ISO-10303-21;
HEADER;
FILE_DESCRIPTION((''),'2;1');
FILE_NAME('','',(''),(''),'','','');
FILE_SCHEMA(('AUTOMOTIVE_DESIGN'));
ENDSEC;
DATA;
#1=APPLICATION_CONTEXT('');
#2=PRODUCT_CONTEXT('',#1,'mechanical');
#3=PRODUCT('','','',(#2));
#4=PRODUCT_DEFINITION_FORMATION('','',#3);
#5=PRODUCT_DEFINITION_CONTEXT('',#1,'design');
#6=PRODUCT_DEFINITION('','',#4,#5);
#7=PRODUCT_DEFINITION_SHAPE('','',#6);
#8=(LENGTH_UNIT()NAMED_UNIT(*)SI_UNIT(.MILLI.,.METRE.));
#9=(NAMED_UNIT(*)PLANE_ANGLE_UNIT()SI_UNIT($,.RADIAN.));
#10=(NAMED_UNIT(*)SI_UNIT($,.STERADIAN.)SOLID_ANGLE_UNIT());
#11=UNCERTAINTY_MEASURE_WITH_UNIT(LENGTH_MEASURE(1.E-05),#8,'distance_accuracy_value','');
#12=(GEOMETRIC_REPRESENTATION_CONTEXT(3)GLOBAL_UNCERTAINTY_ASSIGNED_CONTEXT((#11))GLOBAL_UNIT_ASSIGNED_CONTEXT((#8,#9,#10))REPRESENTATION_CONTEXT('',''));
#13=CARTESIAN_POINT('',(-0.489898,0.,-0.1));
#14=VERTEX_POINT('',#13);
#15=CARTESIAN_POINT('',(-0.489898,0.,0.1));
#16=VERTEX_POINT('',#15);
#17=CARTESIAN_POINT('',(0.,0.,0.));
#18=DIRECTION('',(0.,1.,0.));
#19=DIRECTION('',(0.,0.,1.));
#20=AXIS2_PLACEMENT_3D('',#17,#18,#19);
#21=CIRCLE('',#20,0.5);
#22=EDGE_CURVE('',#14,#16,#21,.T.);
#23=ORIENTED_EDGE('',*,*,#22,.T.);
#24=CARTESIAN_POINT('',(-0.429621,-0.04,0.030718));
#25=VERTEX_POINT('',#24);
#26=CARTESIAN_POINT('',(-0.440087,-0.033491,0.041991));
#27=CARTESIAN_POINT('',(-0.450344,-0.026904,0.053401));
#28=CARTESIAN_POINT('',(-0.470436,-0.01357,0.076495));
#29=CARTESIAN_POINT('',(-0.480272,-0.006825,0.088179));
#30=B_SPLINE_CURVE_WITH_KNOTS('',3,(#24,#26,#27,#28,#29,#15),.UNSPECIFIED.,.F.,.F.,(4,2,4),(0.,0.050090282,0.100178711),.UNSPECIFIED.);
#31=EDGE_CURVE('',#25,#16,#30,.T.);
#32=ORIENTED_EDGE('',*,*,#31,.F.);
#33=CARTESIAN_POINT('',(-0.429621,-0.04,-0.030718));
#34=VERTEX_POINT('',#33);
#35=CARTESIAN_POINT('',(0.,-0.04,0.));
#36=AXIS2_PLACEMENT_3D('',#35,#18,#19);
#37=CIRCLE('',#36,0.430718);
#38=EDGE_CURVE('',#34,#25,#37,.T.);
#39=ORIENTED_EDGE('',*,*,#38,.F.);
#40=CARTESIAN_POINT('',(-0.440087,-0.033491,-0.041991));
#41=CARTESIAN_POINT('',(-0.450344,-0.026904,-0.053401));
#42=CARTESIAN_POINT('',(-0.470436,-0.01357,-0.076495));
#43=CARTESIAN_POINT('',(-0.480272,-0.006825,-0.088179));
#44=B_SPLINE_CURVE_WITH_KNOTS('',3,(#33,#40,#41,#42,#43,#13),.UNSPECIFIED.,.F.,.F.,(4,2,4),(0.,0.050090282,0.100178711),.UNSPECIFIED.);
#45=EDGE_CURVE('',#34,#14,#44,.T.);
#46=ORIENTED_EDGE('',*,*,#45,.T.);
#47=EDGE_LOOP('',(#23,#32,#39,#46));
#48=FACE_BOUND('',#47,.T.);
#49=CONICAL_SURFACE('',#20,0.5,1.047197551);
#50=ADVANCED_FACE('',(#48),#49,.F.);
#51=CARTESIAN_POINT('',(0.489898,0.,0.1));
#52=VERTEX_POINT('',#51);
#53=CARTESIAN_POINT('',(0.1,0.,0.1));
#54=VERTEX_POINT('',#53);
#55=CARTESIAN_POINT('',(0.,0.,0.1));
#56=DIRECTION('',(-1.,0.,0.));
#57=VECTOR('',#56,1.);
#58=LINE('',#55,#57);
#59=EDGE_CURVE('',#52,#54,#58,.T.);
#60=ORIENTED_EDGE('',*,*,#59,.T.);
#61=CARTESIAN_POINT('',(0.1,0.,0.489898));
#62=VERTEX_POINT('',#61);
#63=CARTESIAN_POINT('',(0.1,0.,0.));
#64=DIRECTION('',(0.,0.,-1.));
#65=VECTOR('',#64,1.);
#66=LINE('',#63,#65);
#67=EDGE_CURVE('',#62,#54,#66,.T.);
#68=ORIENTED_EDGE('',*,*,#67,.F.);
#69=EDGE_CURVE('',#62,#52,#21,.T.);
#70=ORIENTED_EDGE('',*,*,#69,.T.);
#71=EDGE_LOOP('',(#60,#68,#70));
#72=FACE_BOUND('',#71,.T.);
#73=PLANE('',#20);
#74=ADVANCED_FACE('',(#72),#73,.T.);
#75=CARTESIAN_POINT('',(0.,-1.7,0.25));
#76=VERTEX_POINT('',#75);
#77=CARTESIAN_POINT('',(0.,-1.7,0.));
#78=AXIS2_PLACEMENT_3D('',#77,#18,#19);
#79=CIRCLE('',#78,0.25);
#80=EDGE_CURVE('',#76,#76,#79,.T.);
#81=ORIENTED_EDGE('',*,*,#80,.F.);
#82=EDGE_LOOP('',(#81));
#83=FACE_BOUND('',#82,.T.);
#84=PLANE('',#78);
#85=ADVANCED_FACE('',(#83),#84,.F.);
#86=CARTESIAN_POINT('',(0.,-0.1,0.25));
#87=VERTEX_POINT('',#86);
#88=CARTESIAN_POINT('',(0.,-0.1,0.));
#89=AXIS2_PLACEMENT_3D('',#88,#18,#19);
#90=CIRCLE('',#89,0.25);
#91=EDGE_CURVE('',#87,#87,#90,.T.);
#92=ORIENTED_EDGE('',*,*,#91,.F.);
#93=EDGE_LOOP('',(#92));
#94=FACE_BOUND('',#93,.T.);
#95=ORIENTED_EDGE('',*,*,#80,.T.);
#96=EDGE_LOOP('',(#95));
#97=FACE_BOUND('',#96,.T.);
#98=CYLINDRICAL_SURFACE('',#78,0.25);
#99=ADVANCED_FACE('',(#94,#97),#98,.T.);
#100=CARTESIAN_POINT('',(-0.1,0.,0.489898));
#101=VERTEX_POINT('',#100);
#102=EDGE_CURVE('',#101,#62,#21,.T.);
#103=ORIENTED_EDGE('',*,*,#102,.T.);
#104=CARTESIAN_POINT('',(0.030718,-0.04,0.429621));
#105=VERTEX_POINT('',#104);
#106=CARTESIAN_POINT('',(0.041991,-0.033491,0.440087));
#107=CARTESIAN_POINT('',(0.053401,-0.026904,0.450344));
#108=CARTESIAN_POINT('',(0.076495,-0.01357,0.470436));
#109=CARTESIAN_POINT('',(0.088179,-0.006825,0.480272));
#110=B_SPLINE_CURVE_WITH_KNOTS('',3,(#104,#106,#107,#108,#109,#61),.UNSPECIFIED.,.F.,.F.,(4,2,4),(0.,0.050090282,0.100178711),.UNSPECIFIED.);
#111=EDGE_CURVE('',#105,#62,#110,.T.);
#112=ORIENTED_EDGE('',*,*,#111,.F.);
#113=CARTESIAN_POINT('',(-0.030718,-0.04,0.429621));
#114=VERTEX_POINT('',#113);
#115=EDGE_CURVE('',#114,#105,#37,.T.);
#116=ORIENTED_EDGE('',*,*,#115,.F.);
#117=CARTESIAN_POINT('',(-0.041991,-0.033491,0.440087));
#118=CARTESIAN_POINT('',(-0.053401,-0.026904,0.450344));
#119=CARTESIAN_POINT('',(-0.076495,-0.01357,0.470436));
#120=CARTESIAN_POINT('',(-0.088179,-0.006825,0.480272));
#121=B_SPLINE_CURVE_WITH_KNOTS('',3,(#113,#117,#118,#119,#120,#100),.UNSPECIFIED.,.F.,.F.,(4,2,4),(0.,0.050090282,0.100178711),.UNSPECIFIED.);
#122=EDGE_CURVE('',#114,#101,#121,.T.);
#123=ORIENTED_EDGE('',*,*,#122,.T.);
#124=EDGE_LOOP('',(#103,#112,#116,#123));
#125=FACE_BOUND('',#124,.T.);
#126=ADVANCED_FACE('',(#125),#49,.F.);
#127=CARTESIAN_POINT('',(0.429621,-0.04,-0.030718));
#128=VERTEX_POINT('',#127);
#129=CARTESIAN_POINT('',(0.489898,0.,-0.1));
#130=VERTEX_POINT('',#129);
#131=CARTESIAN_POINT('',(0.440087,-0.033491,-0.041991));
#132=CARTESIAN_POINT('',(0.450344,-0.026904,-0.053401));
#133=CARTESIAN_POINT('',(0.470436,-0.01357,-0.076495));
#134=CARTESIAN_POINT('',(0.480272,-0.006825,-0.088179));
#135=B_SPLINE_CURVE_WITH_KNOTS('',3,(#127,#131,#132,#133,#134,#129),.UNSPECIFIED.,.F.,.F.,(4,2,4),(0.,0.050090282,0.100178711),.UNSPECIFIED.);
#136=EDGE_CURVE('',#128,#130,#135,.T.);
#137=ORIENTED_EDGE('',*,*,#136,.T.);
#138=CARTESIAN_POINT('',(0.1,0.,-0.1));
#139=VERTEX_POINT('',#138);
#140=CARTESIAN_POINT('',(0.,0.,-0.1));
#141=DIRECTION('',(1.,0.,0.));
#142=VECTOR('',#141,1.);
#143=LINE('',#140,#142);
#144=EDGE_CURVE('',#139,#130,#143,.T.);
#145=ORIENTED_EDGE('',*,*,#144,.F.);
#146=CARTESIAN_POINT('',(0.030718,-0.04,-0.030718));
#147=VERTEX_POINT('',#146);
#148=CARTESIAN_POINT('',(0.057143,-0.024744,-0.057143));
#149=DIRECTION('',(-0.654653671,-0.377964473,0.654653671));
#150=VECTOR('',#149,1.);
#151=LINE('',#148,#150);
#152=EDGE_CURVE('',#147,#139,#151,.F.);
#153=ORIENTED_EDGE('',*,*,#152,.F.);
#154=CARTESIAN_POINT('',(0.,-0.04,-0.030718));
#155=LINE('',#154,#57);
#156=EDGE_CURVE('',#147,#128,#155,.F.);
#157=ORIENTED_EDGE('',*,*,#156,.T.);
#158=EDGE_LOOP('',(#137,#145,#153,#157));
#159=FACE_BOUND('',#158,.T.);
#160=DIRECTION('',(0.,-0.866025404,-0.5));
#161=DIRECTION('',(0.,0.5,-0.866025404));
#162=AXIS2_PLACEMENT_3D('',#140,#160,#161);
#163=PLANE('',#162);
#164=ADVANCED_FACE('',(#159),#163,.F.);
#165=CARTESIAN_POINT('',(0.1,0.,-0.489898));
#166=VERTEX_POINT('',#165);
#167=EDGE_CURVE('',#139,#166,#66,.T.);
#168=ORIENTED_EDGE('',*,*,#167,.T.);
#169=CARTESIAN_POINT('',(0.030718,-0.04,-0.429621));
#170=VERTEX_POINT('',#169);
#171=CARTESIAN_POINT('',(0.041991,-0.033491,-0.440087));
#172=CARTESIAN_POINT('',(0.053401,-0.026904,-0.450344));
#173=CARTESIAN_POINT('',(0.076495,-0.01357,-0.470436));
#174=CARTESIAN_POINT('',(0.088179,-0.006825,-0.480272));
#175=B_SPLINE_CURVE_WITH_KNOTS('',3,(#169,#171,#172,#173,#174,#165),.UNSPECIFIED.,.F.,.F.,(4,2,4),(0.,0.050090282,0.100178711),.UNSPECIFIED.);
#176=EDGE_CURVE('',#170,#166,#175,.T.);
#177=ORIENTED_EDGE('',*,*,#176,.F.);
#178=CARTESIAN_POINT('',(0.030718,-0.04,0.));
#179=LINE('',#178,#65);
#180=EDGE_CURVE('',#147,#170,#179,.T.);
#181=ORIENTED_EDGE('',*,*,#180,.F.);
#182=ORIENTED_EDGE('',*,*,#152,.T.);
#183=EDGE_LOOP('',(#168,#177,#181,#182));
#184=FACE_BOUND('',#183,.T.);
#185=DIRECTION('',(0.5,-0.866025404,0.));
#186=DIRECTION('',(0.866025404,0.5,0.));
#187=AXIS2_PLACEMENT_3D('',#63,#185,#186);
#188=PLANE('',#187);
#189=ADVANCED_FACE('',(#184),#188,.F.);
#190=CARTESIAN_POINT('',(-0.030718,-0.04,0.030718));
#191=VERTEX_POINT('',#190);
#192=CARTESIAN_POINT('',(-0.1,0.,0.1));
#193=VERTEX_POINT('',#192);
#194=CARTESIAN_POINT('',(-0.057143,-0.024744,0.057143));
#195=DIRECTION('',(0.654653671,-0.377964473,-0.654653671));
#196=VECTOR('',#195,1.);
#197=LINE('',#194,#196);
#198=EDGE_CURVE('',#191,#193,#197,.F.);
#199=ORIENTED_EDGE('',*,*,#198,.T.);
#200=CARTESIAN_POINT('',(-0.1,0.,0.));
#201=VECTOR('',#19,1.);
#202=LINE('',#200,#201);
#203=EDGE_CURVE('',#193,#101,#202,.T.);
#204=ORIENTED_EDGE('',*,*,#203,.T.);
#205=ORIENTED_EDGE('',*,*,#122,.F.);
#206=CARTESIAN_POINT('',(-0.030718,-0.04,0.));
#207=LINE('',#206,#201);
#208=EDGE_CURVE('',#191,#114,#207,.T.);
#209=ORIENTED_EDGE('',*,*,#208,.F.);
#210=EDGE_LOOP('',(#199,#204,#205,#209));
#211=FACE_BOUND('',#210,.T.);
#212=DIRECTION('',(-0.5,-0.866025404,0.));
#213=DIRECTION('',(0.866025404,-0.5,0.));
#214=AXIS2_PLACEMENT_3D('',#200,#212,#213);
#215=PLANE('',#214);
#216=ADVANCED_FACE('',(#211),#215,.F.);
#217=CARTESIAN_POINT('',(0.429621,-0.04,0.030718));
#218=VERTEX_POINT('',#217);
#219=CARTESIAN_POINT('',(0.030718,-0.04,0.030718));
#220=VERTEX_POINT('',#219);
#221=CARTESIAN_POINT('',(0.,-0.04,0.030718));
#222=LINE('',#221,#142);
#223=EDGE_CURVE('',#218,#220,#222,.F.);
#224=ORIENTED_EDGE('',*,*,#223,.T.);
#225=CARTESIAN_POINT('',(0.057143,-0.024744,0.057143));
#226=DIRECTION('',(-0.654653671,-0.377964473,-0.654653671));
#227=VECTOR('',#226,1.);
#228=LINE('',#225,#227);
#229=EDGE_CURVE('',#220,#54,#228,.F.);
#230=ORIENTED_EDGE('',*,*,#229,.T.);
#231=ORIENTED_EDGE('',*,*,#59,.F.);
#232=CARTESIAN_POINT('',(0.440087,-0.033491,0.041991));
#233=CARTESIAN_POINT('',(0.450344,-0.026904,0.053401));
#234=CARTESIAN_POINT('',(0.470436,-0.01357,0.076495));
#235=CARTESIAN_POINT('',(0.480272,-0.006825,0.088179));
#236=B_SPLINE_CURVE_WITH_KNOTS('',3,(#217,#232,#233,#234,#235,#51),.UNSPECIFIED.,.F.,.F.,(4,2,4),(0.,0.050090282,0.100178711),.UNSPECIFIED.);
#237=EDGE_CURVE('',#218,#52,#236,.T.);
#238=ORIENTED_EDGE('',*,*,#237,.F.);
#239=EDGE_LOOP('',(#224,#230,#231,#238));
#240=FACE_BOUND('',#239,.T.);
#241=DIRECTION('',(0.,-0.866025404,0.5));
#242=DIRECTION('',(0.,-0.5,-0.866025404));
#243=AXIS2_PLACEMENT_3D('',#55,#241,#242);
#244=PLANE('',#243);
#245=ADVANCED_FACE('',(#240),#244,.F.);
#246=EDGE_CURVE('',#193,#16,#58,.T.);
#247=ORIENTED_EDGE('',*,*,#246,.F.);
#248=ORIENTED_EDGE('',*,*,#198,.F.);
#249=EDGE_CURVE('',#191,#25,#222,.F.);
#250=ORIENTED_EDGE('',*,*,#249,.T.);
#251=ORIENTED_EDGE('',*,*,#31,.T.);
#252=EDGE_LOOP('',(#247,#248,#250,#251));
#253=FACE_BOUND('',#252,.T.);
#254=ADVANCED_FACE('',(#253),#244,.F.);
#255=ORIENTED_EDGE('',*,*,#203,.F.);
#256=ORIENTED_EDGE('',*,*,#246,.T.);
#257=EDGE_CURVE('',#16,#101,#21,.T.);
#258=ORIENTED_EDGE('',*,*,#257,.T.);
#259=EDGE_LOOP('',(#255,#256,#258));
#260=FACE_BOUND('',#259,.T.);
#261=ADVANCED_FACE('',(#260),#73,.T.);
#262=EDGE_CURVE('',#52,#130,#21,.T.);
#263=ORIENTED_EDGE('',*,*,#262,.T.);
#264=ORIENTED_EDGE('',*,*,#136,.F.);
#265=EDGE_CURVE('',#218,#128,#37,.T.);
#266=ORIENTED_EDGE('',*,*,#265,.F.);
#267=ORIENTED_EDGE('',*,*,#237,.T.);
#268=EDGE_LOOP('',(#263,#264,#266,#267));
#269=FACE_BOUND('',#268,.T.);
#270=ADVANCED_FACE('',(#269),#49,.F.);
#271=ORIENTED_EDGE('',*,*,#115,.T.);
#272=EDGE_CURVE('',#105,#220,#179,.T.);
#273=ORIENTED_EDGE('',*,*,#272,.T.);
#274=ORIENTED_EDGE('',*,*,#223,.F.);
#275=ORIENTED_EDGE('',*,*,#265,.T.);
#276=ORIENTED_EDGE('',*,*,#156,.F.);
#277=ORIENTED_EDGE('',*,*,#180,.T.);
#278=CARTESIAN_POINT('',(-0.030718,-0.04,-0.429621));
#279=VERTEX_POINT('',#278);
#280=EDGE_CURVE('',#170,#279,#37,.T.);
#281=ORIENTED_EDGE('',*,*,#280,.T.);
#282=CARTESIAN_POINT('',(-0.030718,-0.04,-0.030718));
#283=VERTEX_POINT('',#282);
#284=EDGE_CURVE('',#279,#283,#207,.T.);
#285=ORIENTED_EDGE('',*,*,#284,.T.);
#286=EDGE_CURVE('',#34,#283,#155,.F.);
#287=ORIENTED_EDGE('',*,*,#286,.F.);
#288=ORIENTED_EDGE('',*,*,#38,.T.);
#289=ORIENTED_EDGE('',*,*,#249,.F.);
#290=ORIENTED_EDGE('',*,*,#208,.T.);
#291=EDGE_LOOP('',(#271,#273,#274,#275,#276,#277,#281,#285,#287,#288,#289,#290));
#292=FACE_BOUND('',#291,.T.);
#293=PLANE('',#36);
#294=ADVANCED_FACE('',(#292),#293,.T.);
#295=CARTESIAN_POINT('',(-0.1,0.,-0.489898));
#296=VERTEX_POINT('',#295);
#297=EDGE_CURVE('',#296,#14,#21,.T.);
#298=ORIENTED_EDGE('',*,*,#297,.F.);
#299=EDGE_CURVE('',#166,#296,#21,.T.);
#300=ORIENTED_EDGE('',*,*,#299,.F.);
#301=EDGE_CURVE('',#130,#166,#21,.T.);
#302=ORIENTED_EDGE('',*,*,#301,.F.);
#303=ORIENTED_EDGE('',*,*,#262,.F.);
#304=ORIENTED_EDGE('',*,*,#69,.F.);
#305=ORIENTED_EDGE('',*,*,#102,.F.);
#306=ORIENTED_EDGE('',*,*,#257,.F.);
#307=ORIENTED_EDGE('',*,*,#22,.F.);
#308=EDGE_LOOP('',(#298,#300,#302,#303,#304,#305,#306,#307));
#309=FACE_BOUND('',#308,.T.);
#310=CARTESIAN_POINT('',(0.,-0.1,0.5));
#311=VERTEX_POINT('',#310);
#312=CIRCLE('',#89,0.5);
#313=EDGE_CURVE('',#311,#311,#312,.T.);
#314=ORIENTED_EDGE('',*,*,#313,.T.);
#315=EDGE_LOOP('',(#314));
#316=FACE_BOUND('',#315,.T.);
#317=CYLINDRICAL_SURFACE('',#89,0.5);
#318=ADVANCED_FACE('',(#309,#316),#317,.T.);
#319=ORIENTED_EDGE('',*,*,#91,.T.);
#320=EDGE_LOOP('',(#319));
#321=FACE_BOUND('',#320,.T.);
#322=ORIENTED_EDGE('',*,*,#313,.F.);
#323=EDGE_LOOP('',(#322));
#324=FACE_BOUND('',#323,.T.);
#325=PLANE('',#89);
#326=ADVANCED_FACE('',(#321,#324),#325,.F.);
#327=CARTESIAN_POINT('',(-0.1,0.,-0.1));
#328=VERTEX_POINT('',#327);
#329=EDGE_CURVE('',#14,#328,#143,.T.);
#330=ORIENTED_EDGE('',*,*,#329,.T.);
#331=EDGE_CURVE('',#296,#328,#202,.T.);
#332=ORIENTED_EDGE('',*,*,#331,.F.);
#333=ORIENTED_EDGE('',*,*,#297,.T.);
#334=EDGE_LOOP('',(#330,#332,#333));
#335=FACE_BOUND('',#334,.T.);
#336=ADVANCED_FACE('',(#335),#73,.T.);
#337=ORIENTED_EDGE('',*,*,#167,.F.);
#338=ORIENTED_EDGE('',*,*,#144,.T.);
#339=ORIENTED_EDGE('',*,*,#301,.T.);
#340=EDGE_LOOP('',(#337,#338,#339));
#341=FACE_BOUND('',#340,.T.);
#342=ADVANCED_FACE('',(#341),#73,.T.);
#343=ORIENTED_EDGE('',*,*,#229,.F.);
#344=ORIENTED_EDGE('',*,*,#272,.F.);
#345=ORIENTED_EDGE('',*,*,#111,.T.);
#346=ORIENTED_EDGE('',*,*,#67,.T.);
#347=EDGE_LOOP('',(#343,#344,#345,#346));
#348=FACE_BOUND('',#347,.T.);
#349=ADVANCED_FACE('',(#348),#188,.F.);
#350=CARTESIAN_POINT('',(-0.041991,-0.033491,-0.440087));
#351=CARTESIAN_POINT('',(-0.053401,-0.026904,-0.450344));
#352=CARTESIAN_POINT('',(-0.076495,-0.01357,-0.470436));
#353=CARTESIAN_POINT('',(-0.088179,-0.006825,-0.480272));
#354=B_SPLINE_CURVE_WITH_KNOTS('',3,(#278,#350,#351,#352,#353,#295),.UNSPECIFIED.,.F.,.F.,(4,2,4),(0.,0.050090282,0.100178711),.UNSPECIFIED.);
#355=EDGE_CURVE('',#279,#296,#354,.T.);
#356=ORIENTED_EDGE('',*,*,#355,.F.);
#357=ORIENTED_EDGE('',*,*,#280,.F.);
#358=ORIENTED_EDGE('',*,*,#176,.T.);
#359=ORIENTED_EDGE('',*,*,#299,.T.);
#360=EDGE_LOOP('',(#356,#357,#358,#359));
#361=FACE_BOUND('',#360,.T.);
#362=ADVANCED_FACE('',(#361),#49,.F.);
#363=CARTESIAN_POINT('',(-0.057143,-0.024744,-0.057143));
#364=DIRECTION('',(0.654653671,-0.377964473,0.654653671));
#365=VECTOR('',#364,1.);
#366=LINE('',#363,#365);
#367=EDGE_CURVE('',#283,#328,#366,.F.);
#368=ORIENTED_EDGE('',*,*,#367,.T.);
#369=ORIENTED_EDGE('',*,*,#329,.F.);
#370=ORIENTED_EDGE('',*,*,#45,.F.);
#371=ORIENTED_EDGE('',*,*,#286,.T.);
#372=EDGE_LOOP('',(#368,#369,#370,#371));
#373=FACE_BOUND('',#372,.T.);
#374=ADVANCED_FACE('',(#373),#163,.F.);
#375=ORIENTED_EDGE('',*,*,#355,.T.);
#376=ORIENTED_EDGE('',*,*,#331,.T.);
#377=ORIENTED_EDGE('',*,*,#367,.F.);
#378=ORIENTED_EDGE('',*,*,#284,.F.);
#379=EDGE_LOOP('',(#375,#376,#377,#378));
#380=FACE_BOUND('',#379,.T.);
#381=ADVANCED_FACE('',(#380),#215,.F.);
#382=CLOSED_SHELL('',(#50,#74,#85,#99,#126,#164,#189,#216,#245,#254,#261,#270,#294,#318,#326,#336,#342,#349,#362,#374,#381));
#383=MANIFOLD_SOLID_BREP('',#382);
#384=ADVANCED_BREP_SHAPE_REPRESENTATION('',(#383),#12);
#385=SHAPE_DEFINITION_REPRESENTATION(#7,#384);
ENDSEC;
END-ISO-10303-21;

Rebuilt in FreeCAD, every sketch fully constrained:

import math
import FreeCAD as App
import Part
import Sketcher

V = App.Vector
Q = App.Units.Quantity

doc = App.newDocument("Part")
body = doc.addObject("PartDesign::Body", "Body")

# Sketch on XZ plane
sketch1 = doc.addObject("Sketcher::SketchObject", "Sketch")
body.addObject(sketch1)
sketch1.AttachmentSupport = (doc.XZ_Plane, [""])
sketch1.MapMode = "FlatFace"
sketch1.addGeometry(Part.Circle(V(0, 0, 0), V(0, 0, 1), 0.5), False)
sketch1.addConstraint([
    Sketcher.Constraint("Coincident", 0, 3, -1, 1),
    Sketcher.Constraint("Diameter", 0, Q("1 mm")),
])
pad1 = doc.addObject("PartDesign::Pad", "Pad")
body.addObject(pad1)
pad1.Profile = sketch1
pad1.Length = 0.1

# Sketch on XZ plane
sketch2 = doc.addObject("Sketcher::SketchObject", "Sketch001")
body.addObject(sketch2)
sketch2.AttachmentSupport = (doc.XZ_Plane, [""])
sketch2.MapMode = "FlatFace"
sketch2.AttachmentOffset = App.Placement(V(0, 0, 0.1), App.Rotation())
sketch2.addGeometry(Part.Circle(V(0, 0, 0), V(0, 0, 1), 0.25), False)
sketch2.addConstraint([
    Sketcher.Constraint("Coincident", 0, 3, -1, 1),
    Sketcher.Constraint("Diameter", 0, Q("0.5 mm")),
])
pad2 = doc.addObject("PartDesign::Pad", "Pad001")
body.addObject(pad2)
pad2.Profile = sketch2
pad2.Length = 1.6

# Sketch on XZ plane
sketch3 = doc.addObject("Sketcher::SketchObject", "Sketch002")
body.addObject(sketch3)
sketch3.AttachmentSupport = (doc.XZ_Plane, [""])
sketch3.MapMode = "FlatFace"
sketch3.addGeometry([
    Part.ArcOfCircle(Part.Circle(V(0, 0, 0), V(0, 0, 1), 0.5), math.radians(-101.536959), math.radians(-78.463041)),  # 0
    Part.LineSegment(V(-0.1, -0.489898, 0), V(-0.1, -0.1, 0)),  # 1
    Part.LineSegment(V(-0.1, -0.1, 0), V(-0.489898, -0.1, 0)),  # 2
    Part.ArcOfCircle(Part.Circle(V(0, 0, 0), V(0, 0, 1), 0.5), math.radians(168.463041), math.radians(191.536959)),  # 3
    Part.LineSegment(V(-0.489898, 0.1, 0), V(-0.1, 0.1, 0)),  # 4
    Part.LineSegment(V(-0.1, 0.1, 0), V(-0.1, 0.489898, 0)),  # 5
    Part.ArcOfCircle(Part.Circle(V(0, 0, 0), V(0, 0, 1), 0.5), math.radians(78.463041), math.radians(101.536959)),  # 6
    Part.LineSegment(V(0.1, 0.489898, 0), V(0.1, 0.1, 0)),  # 7
    Part.LineSegment(V(0.1, 0.1, 0), V(0.489898, 0.1, 0)),  # 8
    Part.ArcOfCircle(Part.Circle(V(0, 0, 0), V(0, 0, 1), 0.5), math.radians(-11.536959), math.radians(11.536959)),  # 9
    Part.LineSegment(V(0.489898, -0.1, 0), V(0.1, -0.1, 0)),  # 10
    Part.LineSegment(V(0.1, -0.1, 0), V(0.1, -0.489898, 0)),  # 11
], False)
sketch3.addConstraint([
    Sketcher.Constraint("Coincident", 0, 1, 1, 1),
    Sketcher.Constraint("Coincident", 1, 2, 2, 1),
    Sketcher.Constraint("Coincident", 2, 2, 3, 2),
    Sketcher.Constraint("Coincident", 3, 1, 4, 1),
    Sketcher.Constraint("Coincident", 4, 2, 5, 1),
    Sketcher.Constraint("Coincident", 5, 2, 6, 2),
    Sketcher.Constraint("Coincident", 6, 1, 7, 1),
    Sketcher.Constraint("Coincident", 7, 2, 8, 1),
    Sketcher.Constraint("Coincident", 8, 2, 9, 2),
    Sketcher.Constraint("Coincident", 9, 1, 10, 1),
    Sketcher.Constraint("Coincident", 10, 2, 11, 1),
    Sketcher.Constraint("Coincident", 11, 2, 0, 2),
    Sketcher.Constraint("Vertical", 1),
    Sketcher.Constraint("Horizontal", 2),
    Sketcher.Constraint("Horizontal", 4),
    Sketcher.Constraint("Vertical", 5),
    Sketcher.Constraint("Vertical", 7),
    Sketcher.Constraint("Horizontal", 8),
    Sketcher.Constraint("Horizontal", 10),
    Sketcher.Constraint("Vertical", 11),
    Sketcher.Constraint("Coincident", 0, 3, -1, 1),
    Sketcher.Constraint("Coincident", 3, 3, -1, 1),
    Sketcher.Constraint("Coincident", 6, 3, -1, 1),
    Sketcher.Constraint("Coincident", 9, 3, -1, 1),
    Sketcher.Constraint("Equal", 0, 3),
    Sketcher.Constraint("Equal", 3, 6),
    Sketcher.Constraint("Equal", 6, 9),
    Sketcher.Constraint("Symmetric", 1, 2, 7, 2, -1, 1),
    Sketcher.Constraint("Symmetric", 4, 2, 10, 2, -1, 1),
    Sketcher.Constraint("Symmetric", 4, 2, 7, 2, -2),
    Sketcher.Constraint("Equal", 10, 1),
    Sketcher.Constraint("Radius", 0, Q("0.5 mm")),
    Sketcher.Constraint("DistanceX", 0, 1, -1, 1, Q("0.1 mm")),
])
pocket1 = doc.addObject("PartDesign::Pocket", "Pocket")
body.addObject(pocket1)
pocket1.Profile = sketch3
pocket1.Length = 0.04
pocket1.Reversed = True
pocket1.TaperAngle = -60

doc.recompute()
